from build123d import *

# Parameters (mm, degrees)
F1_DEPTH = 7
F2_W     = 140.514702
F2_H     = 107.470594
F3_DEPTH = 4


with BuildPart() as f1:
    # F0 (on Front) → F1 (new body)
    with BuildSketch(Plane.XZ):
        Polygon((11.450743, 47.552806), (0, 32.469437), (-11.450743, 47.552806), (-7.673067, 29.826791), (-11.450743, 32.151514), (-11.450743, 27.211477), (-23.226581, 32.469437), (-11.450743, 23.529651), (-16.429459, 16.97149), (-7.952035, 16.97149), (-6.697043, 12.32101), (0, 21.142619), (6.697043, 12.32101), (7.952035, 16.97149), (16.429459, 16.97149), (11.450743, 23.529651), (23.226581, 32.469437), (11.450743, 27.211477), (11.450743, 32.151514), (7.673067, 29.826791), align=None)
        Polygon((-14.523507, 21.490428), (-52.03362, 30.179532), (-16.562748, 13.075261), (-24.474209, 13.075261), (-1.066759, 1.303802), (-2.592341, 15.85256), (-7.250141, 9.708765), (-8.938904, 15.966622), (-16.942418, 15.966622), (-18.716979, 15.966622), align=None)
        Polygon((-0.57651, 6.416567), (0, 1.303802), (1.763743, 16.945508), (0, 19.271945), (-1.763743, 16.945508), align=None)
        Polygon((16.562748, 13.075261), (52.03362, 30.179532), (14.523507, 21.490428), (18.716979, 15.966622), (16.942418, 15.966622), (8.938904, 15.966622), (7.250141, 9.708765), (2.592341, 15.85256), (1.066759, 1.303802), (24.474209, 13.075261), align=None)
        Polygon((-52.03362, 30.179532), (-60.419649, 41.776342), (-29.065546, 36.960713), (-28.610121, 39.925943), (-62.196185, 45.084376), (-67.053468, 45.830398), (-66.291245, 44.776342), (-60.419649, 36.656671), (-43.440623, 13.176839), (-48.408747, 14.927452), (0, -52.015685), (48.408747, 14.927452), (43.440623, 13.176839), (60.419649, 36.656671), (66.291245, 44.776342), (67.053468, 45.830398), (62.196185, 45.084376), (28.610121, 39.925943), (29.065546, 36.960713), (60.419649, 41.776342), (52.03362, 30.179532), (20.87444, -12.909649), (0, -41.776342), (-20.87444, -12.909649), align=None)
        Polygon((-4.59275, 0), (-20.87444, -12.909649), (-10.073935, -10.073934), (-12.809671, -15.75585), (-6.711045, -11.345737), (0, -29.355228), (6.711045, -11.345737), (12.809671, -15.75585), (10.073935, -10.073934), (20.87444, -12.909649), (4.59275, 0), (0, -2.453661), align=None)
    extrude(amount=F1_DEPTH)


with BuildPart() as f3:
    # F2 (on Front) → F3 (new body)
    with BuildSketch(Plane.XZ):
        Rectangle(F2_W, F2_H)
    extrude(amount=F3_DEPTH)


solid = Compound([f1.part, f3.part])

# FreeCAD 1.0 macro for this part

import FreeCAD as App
import Part
import Sketcher
from FreeCAD import Vector
Q = App.Units.Quantity


def add_polygon(sketch, points):
    """Adds a closed chain of lines whose ends are joined by coincident constraints."""
    first, n = sketch.GeometryCount, len(points)
    for a, b in zip(points, points[1:] + points[:1]):
        sketch.addGeometry(Part.LineSegment(App.Vector(*a, 0), App.Vector(*b, 0)), False)
    for i in range(n):
        sketch.addConstraint(Sketcher.Constraint("Coincident", first + i, 2, first + (i + 1) % n, 1))

doc = App.newDocument("Part")
body = doc.addObject("PartDesign::Body", "Body")
body.AllowCompound = True

# Sketch on XZ plane
sketch1 = doc.addObject("Sketcher::SketchObject", "Sketch")
body.addObject(sketch1)
sketch1.AttachmentSupport = (doc.XZ_Plane, [""])
sketch1.MapMode = "FlatFace"
add_polygon(sketch1, [(11.5, 47.6), (0, 32.5), (-11.5, 47.6), (-7.7, 29.8), (-11.5, 32.2), (-11.5, 27.2), (-23.2, 32.5), (-11.5, 23.5), (-16.4, 17), (-8, 17), (-6.7, 12.3), (0, 21.1), (6.7, 12.3), (8, 17), (16.4, 17), (11.5, 23.5), (23.2, 32.5), (11.5, 27.2), (11.5, 32.2), (7.7, 29.8)])  # lines 0-19
add_polygon(sketch1, [(-14.5, 21.5), (-52, 30.2), (-16.6, 13.1), (-24.5, 13.1), (-1.1, 1.3), (-2.6, 15.9), (-7.3, 9.7), (-8.9, 16), (-18.7, 16)])  # lines 20-28
add_polygon(sketch1, [(-0.6, 6.4), (0, 1.3), (1.8, 16.9), (0, 19.3), (-1.8, 16.9)])  # lines 29-33
add_polygon(sketch1, [(16.6, 13.1), (52, 30.2), (14.5, 21.5), (18.7, 16), (8.9, 16), (7.3, 9.7), (2.6, 15.9), (1.1, 1.3), (24.5, 13.1)])  # lines 34-42
add_polygon(sketch1, [(-52, 30.2), (-60.4, 41.8), (-29.1, 37), (-28.6, 39.9), (-62.2, 45.1), (-67.1, 45.8), (-66.3, 44.8), (-60.4, 36.7), (-43.4, 13.2), (-48.4, 14.9), (0, -52), (48.4, 14.9), (43.4, 13.2), (60.4, 36.7), (66.3, 44.8), (67.1, 45.8), (62.2, 45.1), (28.6, 39.9), (29.1, 37), (60.4, 41.8), (52, 30.2), (20.9, -12.9), (0, -41.8), (-20.9, -12.9)])  # lines 43-66
add_polygon(sketch1, [(-4.6, 0), (-20.9, -12.9), (-10.1, -10.1), (-12.8, -15.8), (-6.7, -11.3), (0, -29.4), (6.7, -11.3), (12.8, -15.8), (10.1, -10.1), (20.9, -12.9), (4.6, 0), (0, -2.5)])  # lines 67-78
sketch1.addConstraint([
    Sketcher.Constraint("Vertical", 4),
    Sketcher.Constraint("Horizontal", 8),
    Sketcher.Constraint("Horizontal", 13),
    Sketcher.Constraint("Vertical", 17),
    Sketcher.Constraint("Horizontal", 22),
    Sketcher.Constraint("Horizontal", 27),
    Sketcher.Constraint("Horizontal", 37),
    Sketcher.Constraint("Horizontal", 42),
    Sketcher.Constraint("Coincident", 62, 2, 34, 2),
    Sketcher.Constraint("Coincident", 66, 2, 20, 2),
    Sketcher.Constraint("Coincident", 67, 2, 65, 2),
    Sketcher.Constraint("Coincident", 75, 2, 63, 2),
    Sketcher.Constraint("Symmetric", 76, 2, 78, 2, -1, 1),
    Sketcher.Constraint("Symmetric", 9, 2, 11, 2, -2),
    Sketcher.Constraint("Symmetric", 8, 2, 12, 2, -2),
    Sketcher.Constraint("Symmetric", 6, 2, 14, 2, -2),
    Sketcher.Constraint("Symmetric", 5, 2, 15, 2, -2),
    Sketcher.Constraint("Symmetric", 4, 2, 16, 2, -2),
    Sketcher.Constraint("Symmetric", 2, 2, 18, 2, -2),
    Sketcher.Constraint("Symmetric", 1, 2, 19, 2, -2),
    Sketcher.Constraint("Symmetric", 30, 2, 32, 2, -2),
    Sketcher.Constraint("Symmetric", 20, 2, 34, 2, -2),
    Sketcher.Constraint("Symmetric", 28, 2, 35, 2, -2),
    Sketcher.Constraint("Symmetric", 27, 2, 36, 2, -2),
    Sketcher.Constraint("Symmetric", 25, 2, 38, 2, -2),
    Sketcher.Constraint("Symmetric", 24, 2, 39, 2, -2),
    Sketcher.Constraint("Symmetric", 23, 2, 40, 2, -2),
    Sketcher.Constraint("Symmetric", 22, 2, 41, 2, -2),
    Sketcher.Constraint("Symmetric", 51, 2, 53, 2, -2),
    Sketcher.Constraint("Symmetric", 50, 2, 54, 2, -2),
    Sketcher.Constraint("Symmetric", 49, 2, 55, 2, -2),
    Sketcher.Constraint("Symmetric", 48, 2, 56, 2, -2),
    Sketcher.Constraint("Symmetric", 47, 2, 57, 2, -2),
    Sketcher.Constraint("Symmetric", 46, 2, 58, 2, -2),
    Sketcher.Constraint("Symmetric", 45, 2, 59, 2, -2),
    Sketcher.Constraint("Symmetric", 44, 2, 60, 2, -2),
    Sketcher.Constraint("Symmetric", 43, 2, 61, 2, -2),
    Sketcher.Constraint("Symmetric", 63, 2, 65, 2, -2),
    Sketcher.Constraint("Symmetric", 70, 2, 72, 2, -2),
    Sketcher.Constraint("Symmetric", 69, 2, 73, 2, -2),
    Sketcher.Constraint("Symmetric", 68, 2, 74, 2, -2),
    Sketcher.Constraint("PointOnObject", 0, 2, -2),
    Sketcher.Constraint("PointOnObject", 10, 2, -2),
    Sketcher.Constraint("PointOnObject", 29, 2, -2),
    Sketcher.Constraint("PointOnObject", 31, 2, -2),
    Sketcher.Constraint("PointOnObject", 52, 2, -2),
    Sketcher.Constraint("PointOnObject", 64, 2, -2),
    Sketcher.Constraint("PointOnObject", 71, 2, -2),
    Sketcher.Constraint("PointOnObject", 76, 2, -1),
    Sketcher.Constraint("PointOnObject", 77, 2, -2),
    Sketcher.Constraint("Perpendicular", 0, 6),
    Sketcher.Constraint("Perpendicular", 6, 7),
    Sketcher.Constraint("Parallel", 7, 10),
    Sketcher.Constraint("Parallel", 11, 14),
    Sketcher.Constraint("Parallel", 9, 26),
    Sketcher.Constraint("Parallel", 10, 28),
    Sketcher.Constraint("Parallel", 25, 32),
    Sketcher.Constraint("Parallel", 29, 33),
    Sketcher.Constraint("Parallel", 12, 38),
    Sketcher.Constraint("Perpendicular", 44, 45),
    Sketcher.Constraint("Perpendicular", 45, 46),
    Sketcher.Constraint("Parallel", 46, 47),
    Sketcher.Constraint("Parallel", 43, 48),
    Sketcher.Constraint("Parallel", 48, 49),
    Sketcher.Constraint("Parallel", 49, 50),
    Sketcher.Constraint("Parallel", 50, 52),
    Sketcher.Constraint("Parallel", 62, 63),
    Sketcher.Constraint("Parallel", 63, 64),
    Sketcher.Constraint("Perpendicular", 66, 70),
    Sketcher.Constraint("Horizontal", 0, 2, 5, 2),
    Sketcher.Constraint("Horizontal", 3, 2, 17, 2),
    Sketcher.Constraint("Horizontal", 23, 2, 29, 2),
    Sketcher.Constraint("Vertical", 1, 2, 3, 2),
    Sketcher.Constraint("Vertical", 4, 2, 6, 2),
    Sketcher.Constraint("Vertical", 43, 2, 49, 2),
    Sketcher.Constraint("Equal", 22, 42),
    Sketcher.Constraint("Distance", 45, Q("3 mm")),
    Sketcher.Constraint("Distance", 7, Q("8.233899 mm")),
    Sketcher.Constraint("Distance", 10, Q("11.075702 mm")),
    Sketcher.Constraint("DistanceX", 22, 2, 22, 1, Q("7.911461 mm")),
    Sketcher.Constraint("DistanceY", -1, 1, 23, 2, Q("1.303802 mm")),
    Sketcher.Constraint("DistanceY", -1, 1, 47, 2, Q("45.830398 mm")),
    Sketcher.Constraint("Distance", 3, Q("4.435671 mm")),
    Sketcher.Constraint("Distance", 21, Q("39.379422 mm")),
    Sketcher.Constraint("Distance", 25, Q("7.70982 mm")),
    Sketcher.Constraint("Distance", 26, Q("6.48172 mm")),
    Sketcher.Constraint("Distance", 30, Q("15.740831 mm")),
    Sketcher.Constraint("Distance", 44, Q("31.72176 mm")),
    Sketcher.Constraint("Distance", 47, Q("4.914239 mm")),
    Sketcher.Constraint("Distance", 52, Q("82.61229 mm")),
    Sketcher.Constraint("Distance", 63, Q("53.174919 mm")),
    Sketcher.Constraint("Distance", 69, Q("6.306221 mm")),
    Sketcher.Constraint("Distance", 70, Q("7.52611 mm")),
    Sketcher.Constraint("Distance", 71, Q("19.219258 mm")),
    Sketcher.Constraint("Distance", 77, Q("5.207092 mm")),
    Sketcher.Constraint("DistanceX", 8, 1, 8, 2, Q("8.477424 mm")),
    Sketcher.Constraint("DistanceX", 27, 2, 27, 1, Q("9.778075 mm")),
    Sketcher.Constraint("DistanceY", 4, 2, 4, 1, Q("4.940037 mm")),
    Sketcher.Constraint("DistanceY", -1, 1, 2, 2, Q("29.826791 mm")),
    Sketcher.Constraint("DistanceX", 5, 2, -1, 1, Q("23.226581 mm")),
    Sketcher.Constraint("DistanceY", -1, 1, 6, 2, Q("23.529651 mm")),
    Sketcher.Constraint("DistanceX", 7, 2, -1, 1, Q("16.429459 mm")),
    Sketcher.Constraint("DistanceY", -1, 1, 7, 2, Q("16.97149 mm")),
    Sketcher.Constraint("DistanceY", -1, 1, 9, 2, Q("12.32101 mm")),
    Sketcher.Constraint("DistanceX", 20, 2, -1, 1, Q("52.03362 mm")),
    Sketcher.Constraint("DistanceY", -1, 1, 20, 2, Q("30.179532 mm")),
    Sketcher.Constraint("DistanceY", -1, 1, 21, 2, Q("13.075261 mm")),
    Sketcher.Constraint("DistanceX", 23, 2, -1, 1, Q("1.066759 mm")),
    Sketcher.Constraint("DistanceX", 24, 2, -1, 1, Q("2.592341 mm")),
    Sketcher.Constraint("DistanceY", -1, 1, 24, 2, Q("15.85256 mm")),
    Sketcher.Constraint("DistanceX", 25, 2, -1, 1, Q("7.250141 mm")),
    Sketcher.Constraint("DistanceY", -1, 1, 28, 2, Q("21.490428 mm")),
    Sketcher.Constraint("DistanceY", -1, 1, 30, 2, Q("16.945508 mm")),
    Sketcher.Constraint("DistanceX", 33, 2, -1, 1, Q("0.57651 mm")),
    Sketcher.Constraint("DistanceX", 43, 2, -1, 1, Q("60.419649 mm")),
    Sketcher.Constraint("DistanceX", 45, 2, -1, 1, Q("28.610121 mm")),
    Sketcher.Constraint("DistanceY", -1, 1, 49, 2, Q("36.656671 mm")),
    Sketcher.Constraint("DistanceY", -1, 1, 50, 2, Q("13.176839 mm")),
    Sketcher.Constraint("DistanceX", 69, 2, -1, 1, Q("12.809671 mm")),
    Sketcher.Constraint("DistanceY", 69, 2, -1, 1, Q("15.75585 mm")),
    Sketcher.Constraint("DistanceX", -1, 1, 76, 2, Q("4.59275 mm")),
    Sketcher.Constraint("Distance", 2, Q("18.124085 mm")),
    Sketcher.Constraint("Distance", 48, Q("1.300776 mm")),
    Sketcher.Constraint("Distance", 51, Q("5.267533 mm")),
    Sketcher.Constraint("Distance", 68, Q("11.166566 mm")),
])
pad1 = doc.addObject("PartDesign::Pad", "Pad")
body.addObject(pad1)
pad1.Profile = sketch1
pad1.Length = 7
body2 = doc.addObject("PartDesign::Body", "Body001")

# Sketch on XZ plane
sketch2 = doc.addObject("Sketcher::SketchObject", "Sketch001")
body2.addObject(sketch2)
sketch2.AttachmentSupport = (doc.getObject("XZ_Plane001"), [""])
sketch2.MapMode = "FlatFace"
add_polygon(sketch2, [(-70, 54), (-70, -54), (70, -54), (70, 54)])  # lines 0-3
sketch2.addConstraint([
    Sketcher.Constraint("Vertical", 0),
    Sketcher.Constraint("Horizontal", 1),
    Sketcher.Constraint("Vertical", 2),
    Sketcher.Constraint("Horizontal", 3),
    Sketcher.Constraint("Symmetric", 0, 2, 2, 2, -1, 1),
    Sketcher.Constraint("DistanceX", 1, 1, 1, 2, Q("140.514702 mm")),
    Sketcher.Constraint("DistanceY", 0, 2, 0, 1, Q("107.470594 mm")),
])
pad2 = doc.addObject("PartDesign::Pad", "Pad001")
body2.addObject(pad2)
pad2.Profile = sketch2
pad2.Length = 4

doc.recompute()
